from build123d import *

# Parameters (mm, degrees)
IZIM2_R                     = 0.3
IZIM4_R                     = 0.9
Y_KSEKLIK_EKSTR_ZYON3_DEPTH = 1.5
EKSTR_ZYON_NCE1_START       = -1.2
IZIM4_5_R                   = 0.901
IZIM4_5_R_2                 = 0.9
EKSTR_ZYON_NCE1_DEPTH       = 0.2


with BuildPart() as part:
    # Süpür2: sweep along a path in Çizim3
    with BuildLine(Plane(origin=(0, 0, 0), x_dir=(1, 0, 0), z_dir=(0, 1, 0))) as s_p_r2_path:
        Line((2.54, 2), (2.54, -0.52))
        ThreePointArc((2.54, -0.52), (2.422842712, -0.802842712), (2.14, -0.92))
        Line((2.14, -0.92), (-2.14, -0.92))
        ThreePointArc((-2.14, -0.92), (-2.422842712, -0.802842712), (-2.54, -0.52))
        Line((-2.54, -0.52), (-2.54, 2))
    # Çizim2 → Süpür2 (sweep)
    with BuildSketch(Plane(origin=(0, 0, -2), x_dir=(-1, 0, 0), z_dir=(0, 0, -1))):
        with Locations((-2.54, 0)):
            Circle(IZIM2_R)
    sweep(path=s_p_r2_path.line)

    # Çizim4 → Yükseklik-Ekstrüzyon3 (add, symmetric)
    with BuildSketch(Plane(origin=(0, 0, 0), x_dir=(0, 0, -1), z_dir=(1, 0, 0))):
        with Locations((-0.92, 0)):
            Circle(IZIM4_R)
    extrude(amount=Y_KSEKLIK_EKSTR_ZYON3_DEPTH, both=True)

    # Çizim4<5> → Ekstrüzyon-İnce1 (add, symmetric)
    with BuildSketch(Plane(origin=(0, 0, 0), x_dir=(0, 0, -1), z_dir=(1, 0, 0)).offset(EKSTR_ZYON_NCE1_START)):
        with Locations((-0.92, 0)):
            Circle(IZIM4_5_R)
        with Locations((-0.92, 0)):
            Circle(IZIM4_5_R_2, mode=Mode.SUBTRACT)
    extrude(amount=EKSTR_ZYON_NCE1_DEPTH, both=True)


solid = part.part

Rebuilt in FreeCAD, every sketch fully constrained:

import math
import FreeCAD as App
import Part
import Sketcher
from FreeCAD import Vector

doc = App.newDocument("Part")
params = doc.addObject("Spreadsheet::Sheet", "Params")
for row, (alias, value) in enumerate([
    ("sketch1_diameter", "0.6 mm"),
    ("sketch2_radius", "0.4 mm"),
    ("sketch2_width", "4.28 mm"),
    ("sketch2_height", "2.52 mm"),
    ("sketch3_diameter", "1.8 mm"),
    ("pad1_length", "3 mm"),
    ("sketch4_diameter", "1.8 mm"),
    ("pad2_length", "0.4 mm"),
], start=1):
    params.set(f"A{row}", alias)
    params.set(f"B{row}", "=" + value)
    params.setAlias(f"B{row}", alias)

body = doc.addObject("PartDesign::Body", "Body")

sketch1 = body.newObject("Sketcher::SketchObject", "Sketch")
sketch1.AttachmentSupport = (doc.getObject("XY_Plane"), [""])
sketch1.MapMode = "FlatFace"
sketch1.AttachmentOffset = App.Placement(Vector(0, 0, -2), App.Rotation())
sketch1.addGeometry(Part.Circle(Vector(2.54, 0, 0), Vector(0, 0, 1), 0.3), False)
sketch1.addConstraint([
    Sketcher.Constraint("PointOnObject", 0, 3, -1),
    Sketcher.Constraint("Diameter", 0, 0.6),
    Sketcher.Constraint("DistanceX", -1, 1, 0, 3, 2.54),
])
sketch1.setExpression("Constraints[1]", "Params.sketch1_diameter")

sketch2 = body.newObject("Sketcher::SketchObject", "Sketch001")
sketch2.AttachmentSupport = (doc.getObject("XZ_Plane"), [""])
sketch2.MapMode = "FlatFace"
sketch2.addGeometry([
    Part.LineSegment(Vector(2.54, -2, 0), Vector(2.54, 0.52, 0)),
    Part.ArcOfCircle(Part.Circle(Vector(2.14, 0.52, 0), Vector(0, 0, 1), 0.4), math.radians(0), math.radians(90)),
    Part.LineSegment(Vector(2.14, 0.92, 0), Vector(-2.14, 0.92, 0)),
    Part.ArcOfCircle(Part.Circle(Vector(-2.14, 0.52, 0), Vector(0, 0, 1), 0.4), math.radians(90), math.radians(180)),
    Part.LineSegment(Vector(-2.54, 0.52, 0), Vector(-2.54, -2, 0)),
], False)
sketch2.addConstraint([
    Sketcher.Constraint("Tangent", 0, 2, 1, 1),
    Sketcher.Constraint("Tangent", 1, 2, 2, 1),
    Sketcher.Constraint("Tangent", 2, 2, 3, 1),
    Sketcher.Constraint("Tangent", 3, 2, 4, 1),
    Sketcher.Constraint("Vertical", 0),
    Sketcher.Constraint("Horizontal", 2),
    Sketcher.Constraint("Vertical", 4),
    Sketcher.Constraint("Equal", 1, 3),
    Sketcher.Constraint("Symmetric", 0, 1, 4, 2, -2),
    Sketcher.Constraint("Radius", 1, 0.4),
    Sketcher.Constraint("DistanceY", 0, 1, -1, 1, 2.0),
    Sketcher.Constraint("DistanceX", 2, 2, 2, 1, 4.28),
    Sketcher.Constraint("DistanceY", 0, 1, 0, 2, 2.52),
])
sketch2.setExpression("Constraints[9]", "Params.sketch2_radius")
sketch2.setExpression("Constraints[11]", "Params.sketch2_width")
sketch2.setExpression("Constraints[12]", "Params.sketch2_height")
doc.recompute()

additivepipe = body.newObject("PartDesign::AdditivePipe", "AdditivePipe")
additivepipe.Profile = sketch1
additivepipe.Spine = (sketch2, ["Edge1", "Edge2", "Edge3", "Edge4", "Edge5"])

sketch3 = body.newObject("Sketcher::SketchObject", "Sketch002")
sketch3.AttachmentSupport = (doc.getObject("YZ_Plane"), [""])
sketch3.MapMode = "FlatFace"
sketch3.addGeometry(Part.Circle(Vector(0, 0.9, 0), Vector(0, 0, 1), 0.9), False)
sketch3.addConstraint([
    Sketcher.Constraint("PointOnObject", 0, 3, -2),
    Sketcher.Constraint("Diameter", 0, 1.8),
    Sketcher.Constraint("DistanceY", -1, 1, 0, 3, 0.92),
])
sketch3.setExpression("Constraints[1]", "Params.sketch3_diameter")
pad1 = body.newObject("PartDesign::Pad", "Pad")
pad1.Profile = sketch3
pad1.setExpression("Length", "Params.pad1_length")
pad1.Midplane = True

sketch4 = body.newObject("Sketcher::SketchObject", "Sketch003")
sketch4.AttachmentSupport = (doc.getObject("YZ_Plane"), [""])
sketch4.MapMode = "FlatFace"
sketch4.AttachmentOffset = App.Placement(Vector(0, 0, -1.2), App.Rotation())
sketch4.addGeometry([
    Part.Circle(Vector(0, 0.9, 0), Vector(0, 0, 1), 0.9),
    Part.Circle(Vector(0, 0.9, 0), Vector(0, 0, 1), 0.9),
], False)
sketch4.addConstraint([
    Sketcher.Constraint("Coincident", 1, 3, 0, 3),
    Sketcher.Constraint("PointOnObject", 0, 3, -2),
    Sketcher.Constraint("Diameter", 1, 1.8),
    Sketcher.Constraint("Diameter", 0, 1.802),
    Sketcher.Constraint("DistanceY", -1, 1, 0, 3, 0.92),
])
sketch4.setExpression("Constraints[2]", "Params.sketch4_diameter")
pad2 = body.newObject("PartDesign::Pad", "Pad001")
pad2.Profile = sketch4
pad2.setExpression("Length", "Params.pad2_length")
pad2.Midplane = True

doc.recompute()
